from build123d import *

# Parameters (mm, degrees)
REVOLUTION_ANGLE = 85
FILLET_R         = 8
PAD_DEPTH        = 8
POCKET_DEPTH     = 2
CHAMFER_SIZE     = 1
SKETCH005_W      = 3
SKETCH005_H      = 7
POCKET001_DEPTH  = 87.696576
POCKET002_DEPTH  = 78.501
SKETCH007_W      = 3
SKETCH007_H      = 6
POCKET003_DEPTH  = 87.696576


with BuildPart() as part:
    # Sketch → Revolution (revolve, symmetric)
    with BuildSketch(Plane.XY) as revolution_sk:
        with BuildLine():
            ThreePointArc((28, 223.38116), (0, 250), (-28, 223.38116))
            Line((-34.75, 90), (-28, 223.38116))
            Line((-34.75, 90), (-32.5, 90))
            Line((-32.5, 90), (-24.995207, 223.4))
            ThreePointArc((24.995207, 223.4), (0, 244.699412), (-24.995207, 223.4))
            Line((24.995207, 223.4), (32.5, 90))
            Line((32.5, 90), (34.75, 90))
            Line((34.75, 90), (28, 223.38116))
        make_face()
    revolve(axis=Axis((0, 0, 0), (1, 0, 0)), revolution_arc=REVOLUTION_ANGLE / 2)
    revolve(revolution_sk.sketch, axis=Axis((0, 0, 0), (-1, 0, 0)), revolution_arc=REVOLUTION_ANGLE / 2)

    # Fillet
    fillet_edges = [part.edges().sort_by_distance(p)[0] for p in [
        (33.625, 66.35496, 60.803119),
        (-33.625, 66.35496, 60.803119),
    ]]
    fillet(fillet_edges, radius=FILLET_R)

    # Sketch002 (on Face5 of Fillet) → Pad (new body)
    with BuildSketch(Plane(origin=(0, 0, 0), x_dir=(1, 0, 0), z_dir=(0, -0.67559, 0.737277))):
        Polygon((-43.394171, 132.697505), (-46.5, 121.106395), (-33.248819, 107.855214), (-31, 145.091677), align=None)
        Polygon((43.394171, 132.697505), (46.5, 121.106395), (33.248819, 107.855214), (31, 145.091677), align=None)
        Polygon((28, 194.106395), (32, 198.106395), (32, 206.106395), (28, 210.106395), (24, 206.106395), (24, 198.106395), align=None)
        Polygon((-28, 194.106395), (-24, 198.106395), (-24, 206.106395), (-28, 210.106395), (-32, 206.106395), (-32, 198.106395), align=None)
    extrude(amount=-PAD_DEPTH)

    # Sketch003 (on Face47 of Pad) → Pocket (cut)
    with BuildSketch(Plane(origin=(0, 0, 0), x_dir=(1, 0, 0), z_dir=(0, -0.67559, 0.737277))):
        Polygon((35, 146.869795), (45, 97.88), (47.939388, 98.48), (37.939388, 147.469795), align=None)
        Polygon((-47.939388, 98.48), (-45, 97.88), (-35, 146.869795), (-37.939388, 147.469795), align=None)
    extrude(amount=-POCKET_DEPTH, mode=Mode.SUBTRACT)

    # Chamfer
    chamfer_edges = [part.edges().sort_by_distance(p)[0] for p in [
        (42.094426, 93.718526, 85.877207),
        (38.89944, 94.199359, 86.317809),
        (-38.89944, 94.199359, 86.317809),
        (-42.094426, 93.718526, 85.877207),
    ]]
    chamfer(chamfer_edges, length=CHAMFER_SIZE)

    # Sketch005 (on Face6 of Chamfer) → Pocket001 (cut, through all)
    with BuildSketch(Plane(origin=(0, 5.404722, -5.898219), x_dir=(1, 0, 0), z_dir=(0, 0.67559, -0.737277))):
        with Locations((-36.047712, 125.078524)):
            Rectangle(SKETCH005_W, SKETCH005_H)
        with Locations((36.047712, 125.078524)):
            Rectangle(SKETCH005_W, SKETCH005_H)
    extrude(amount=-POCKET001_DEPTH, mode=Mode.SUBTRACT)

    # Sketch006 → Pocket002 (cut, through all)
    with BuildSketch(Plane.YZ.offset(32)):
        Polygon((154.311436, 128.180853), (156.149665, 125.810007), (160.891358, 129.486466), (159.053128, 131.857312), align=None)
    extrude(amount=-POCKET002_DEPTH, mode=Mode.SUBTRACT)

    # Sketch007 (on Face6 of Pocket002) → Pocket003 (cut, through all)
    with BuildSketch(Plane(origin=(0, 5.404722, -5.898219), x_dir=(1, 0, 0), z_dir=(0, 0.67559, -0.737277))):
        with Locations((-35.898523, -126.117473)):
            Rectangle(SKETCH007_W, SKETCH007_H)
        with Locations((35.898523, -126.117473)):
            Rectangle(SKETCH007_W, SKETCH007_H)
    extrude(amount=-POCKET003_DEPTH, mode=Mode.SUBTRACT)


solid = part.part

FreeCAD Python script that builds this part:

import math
import FreeCAD as App
import Part
import Sketcher

V = App.Vector
Q = App.Units.Quantity


def edges_at(feature, points):
    """Names of the edges that pass closest to the given points."""
    edges = feature.Shape.Edges
    near = lambda p: min(range(len(edges)), key=lambda i: edges[i].distToShape(Part.Vertex(*p))[0])
    return sorted({f"Edge{near(p) + 1}" for p in points})

doc = App.newDocument("Part")
params = doc.addObject("Spreadsheet::Sheet", "Params")
for row, (alias, value) in enumerate([
    ("sketch1_width", "2.25 mm"),
    ("revolution_angle", "42.5 deg"),
    ("sketch2_width", "2.25 mm"),
    ("revolution2_angle", "42.5 deg"),
    ("fillet_radius", "8 mm"),
    ("sketch3_height", "8 mm"),
    ("sketch3_length", "12 mm"),
    ("sketch3_length2", "18.74 mm"),
    ("pad1_length", "8 mm"),
    ("sketch4_length", "50 mm"),
    ("sketch4_length2", "3 mm"),
    ("pocket1_length", "2 mm"),
    ("chamfer_size", "1 mm"),
    ("sketch5_width", "3 mm"),
    ("sketch5_height", "7 mm"),
    ("sketch6_length", "2.999999 mm"),
    ("sketch6_length2", "6 mm"),
    ("sketch7_width", "3 mm"),
    ("sketch7_height", "6 mm"),
], start=1):
    params.set(f"A{row}", alias)
    params.set(f"B{row}", "=" + value)
    params.setAlias(f"B{row}", alias)

body = doc.addObject("PartDesign::Body", "Body")

# Sketch on XY plane
sketch1 = body.newObject("Sketcher::SketchObject", "Sketch")
sketch1.AttachmentSupport = (doc.getObject("XY_Plane"), [""])
sketch1.MapMode = "FlatFace"
sketch1.addGeometry([
    Part.ArcOfCircle(Part.Circle(V(0, 222, 0), V(0, 0, 1), 28), math.radians(3), math.radians(177)),  # 0
    Part.LineSegment(V(-28, 223.4, 0), V(-34.8, 90, 0)),  # 1
    Part.LineSegment(V(-34.8, 90, 0), V(-32.5, 90, 0)),  # 2
    Part.LineSegment(V(-32.5, 90, 0), V(-25, 223.4, 0)),  # 3
    Part.ArcOfCircle(Part.Circle(V(0, 219.4, 0), V(0, 0, 1), 25.3), math.radians(9), math.radians(171)),  # 4
    Part.LineSegment(V(25, 223.4, 0), V(32.5, 90, 0)),  # 5
    Part.LineSegment(V(32.5, 90, 0), V(34.8, 90, 0)),  # 6
    Part.LineSegment(V(34.8, 90, 0), V(28, 223.4, 0)),  # 7
], False)
sketch1.addConstraint([
    Sketcher.Constraint("Tangent", 0, 2, 1, 1),
    Sketcher.Constraint("Coincident", 1, 2, 2, 1),
    Sketcher.Constraint("Coincident", 2, 2, 3, 1),
    Sketcher.Constraint("Coincident", 3, 2, 4, 2),
    Sketcher.Constraint("Coincident", 4, 1, 5, 1),
    Sketcher.Constraint("Coincident", 5, 2, 6, 1),
    Sketcher.Constraint("Coincident", 6, 2, 7, 1),
    Sketcher.Constraint("Tangent", 7, 2, 0, 1),
    Sketcher.Constraint("Horizontal", 2),
    Sketcher.Constraint("Horizontal", 6),
    Sketcher.Constraint("Symmetric", 3, 2, 4, 1, -2),
    Sketcher.Constraint("Symmetric", 2, 2, 5, 2, -2),
    Sketcher.Constraint("Symmetric", 0, 2, 7, 2, -2),
    Sketcher.Constraint("DistanceX", 0, 2, -1, 1, 28.0),
    Sketcher.Constraint("DistanceY", -1, 1, 1, 2, 90.0),
    Sketcher.Constraint("DistanceX", 2, 2, 5, 2, 65.0),
    Sketcher.Constraint("DistanceX", 2, 1, 2, 2, 2.25),
    Sketcher.Constraint("DistanceY", -1, 1, 3, 2, 223.4),
    Sketcher.Constraint("Radius", 4, 25.315847),
    Sketcher.Constraint("Distance", 1, 133.551849),
    Sketcher.Constraint("Distance", 3, 133.610935),
])
sketch1.setExpression("Constraints[16]", "Params.sketch1_width")
revolution = body.newObject("PartDesign::Revolution", "Revolution")
revolution.Profile = sketch1
revolution.ReferenceAxis = (sketch1, ["H_Axis"])
revolution.setExpression("Angle", "Params.revolution_angle")

# Sketch on XY plane
sketch2 = body.newObject("Sketcher::SketchObject", "Sketch001")
sketch2.AttachmentSupport = (doc.getObject("XY_Plane"), [""])
sketch2.MapMode = "FlatFace"
sketch2.addGeometry([
    Part.ArcOfCircle(Part.Circle(V(0, 222, 0), V(0, 0, 1), 28), math.radians(3), math.radians(177)),  # 0
    Part.LineSegment(V(-28, 223.4, 0), V(-34.8, 90, 0)),  # 1
    Part.LineSegment(V(-34.8, 90, 0), V(-32.5, 90, 0)),  # 2
    Part.LineSegment(V(-32.5, 90, 0), V(-25, 223.4, 0)),  # 3
    Part.ArcOfCircle(Part.Circle(V(0, 219.4, 0), V(0, 0, 1), 25.3), math.radians(9), math.radians(171)),  # 4
    Part.LineSegment(V(25, 223.4, 0), V(32.5, 90, 0)),  # 5
    Part.LineSegment(V(32.5, 90, 0), V(34.8, 90, 0)),  # 6
    Part.LineSegment(V(34.8, 90, 0), V(28, 223.4, 0)),  # 7
], False)
sketch2.addConstraint([
    Sketcher.Constraint("Tangent", 0, 2, 1, 1),
    Sketcher.Constraint("Coincident", 1, 2, 2, 1),
    Sketcher.Constraint("Coincident", 2, 2, 3, 1),
    Sketcher.Constraint("Coincident", 3, 2, 4, 2),
    Sketcher.Constraint("Coincident", 4, 1, 5, 1),
    Sketcher.Constraint("Coincident", 5, 2, 6, 1),
    Sketcher.Constraint("Coincident", 6, 2, 7, 1),
    Sketcher.Constraint("Tangent", 7, 2, 0, 1),
    Sketcher.Constraint("Horizontal", 2),
    Sketcher.Constraint("Horizontal", 6),
    Sketcher.Constraint("Symmetric", 3, 2, 4, 1, -2),
    Sketcher.Constraint("Symmetric", 2, 2, 5, 2, -2),
    Sketcher.Constraint("Symmetric", 0, 2, 7, 2, -2),
    Sketcher.Constraint("DistanceX", 0, 2, -1, 1, 28.0),
    Sketcher.Constraint("DistanceY", -1, 1, 1, 2, 90.0),
    Sketcher.Constraint("DistanceX", 2, 2, 5, 2, 65.0),
    Sketcher.Constraint("DistanceX", 2, 1, 2, 2, 2.25),
    Sketcher.Constraint("DistanceY", -1, 1, 3, 2, 223.4),
    Sketcher.Constraint("Radius", 4, 25.315847),
    Sketcher.Constraint("Distance", 1, 133.551849),
    Sketcher.Constraint("Distance", 3, 133.610935),
])
sketch2.setExpression("Constraints[16]", "Params.sketch2_width")
revolution2 = body.newObject("PartDesign::Revolution", "Revolution001")
revolution2.Profile = sketch2
revolution2.ReferenceAxis = (sketch2, ["H_Axis"])
revolution2.setExpression("Angle", "Params.revolution2_angle")
revolution2.Reversed = True
doc.recompute()

fillet = body.newObject("PartDesign::Fillet", "Fillet")
fillet.Base = (revolution2, edges_at(revolution2, [(33.625, 66.355, 60.803), (-33.625, 66.355, 60.803)]))
fillet.setExpression("Radius", "Params.fillet_radius")

# Sketch on an angled plane
sketch3 = body.newObject("Sketcher::SketchObject", "Sketch002")
sketch3.Placement = App.Placement(V(0, 0, 0), App.Rotation(V(1, 0, 0), V(0, 0.737277286, 0.675590263), V(0, -0.675590263, 0.737277286), "ZXY"))
sketch3.addGeometry([
    Part.LineSegment(V(-43, 133, 0), V(-46, 121, 0)),  # 0
    Part.LineSegment(V(-46, 121, 0), V(-33, 108, 0)),  # 1
    Part.LineSegment(V(-33, 108, 0), V(-31, 145, 0)),  # 2
    Part.LineSegment(V(-31, 145, 0), V(-43, 133, 0)),  # 3
    Part.LineSegment(V(46, 121, 0), V(43, 133, 0)),  # 4
    Part.LineSegment(V(43, 133, 0), V(31, 145, 0)),  # 5
    Part.LineSegment(V(31, 145, 0), V(33, 108, 0)),  # 6
    Part.LineSegment(V(33, 108, 0), V(46, 121, 0)),  # 7
    Part.LineSegment(V(28, 194, 0), V(32, 198, 0)),  # 8
    Part.LineSegment(V(32, 198, 0), V(32, 206, 0)),  # 9
    Part.LineSegment(V(32, 206, 0), V(28, 210, 0)),  # 10
    Part.LineSegment(V(28, 210, 0), V(24, 206, 0)),  # 11
    Part.LineSegment(V(24, 206, 0), V(24, 198, 0)),  # 12
    Part.LineSegment(V(24, 198, 0), V(28, 194, 0)),  # 13
    Part.LineSegment(V(-28, 194, 0), V(-24, 198, 0)),  # 14
    Part.LineSegment(V(-24, 198, 0), V(-24, 206, 0)),  # 15
    Part.LineSegment(V(-24, 206, 0), V(-28, 210, 0)),  # 16
    Part.LineSegment(V(-28, 210, 0), V(-32, 206, 0)),  # 17
    Part.LineSegment(V(-32, 206, 0), V(-32, 198, 0)),  # 18
    Part.LineSegment(V(-32, 198, 0), V(-28, 194, 0)),  # 19
], False)
sketch3.addConstraint([
    Sketcher.Constraint("Coincident", 0, 2, 1, 1),
    Sketcher.Constraint("Coincident", 1, 2, 2, 1),
    Sketcher.Constraint("Coincident", 2, 2, 3, 1),
    Sketcher.Constraint("Coincident", 3, 2, 0, 1),
    Sketcher.Constraint("Coincident", 4, 2, 5, 1),
    Sketcher.Constraint("Coincident", 5, 2, 6, 1),
    Sketcher.Constraint("Coincident", 6, 2, 7, 1),
    Sketcher.Constraint("Coincident", 7, 2, 4, 1),
    Sketcher.Constraint("Coincident", 8, 2, 9, 1),
    Sketcher.Constraint("Coincident", 9, 2, 10, 1),
    Sketcher.Constraint("Coincident", 10, 2, 11, 1),
    Sketcher.Constraint("Coincident", 11, 2, 12, 1),
    Sketcher.Constraint("Coincident", 12, 2, 13, 1),
    Sketcher.Constraint("Coincident", 13, 2, 8, 1),
    Sketcher.Constraint("Coincident", 14, 2, 15, 1),
    Sketcher.Constraint("Coincident", 15, 2, 16, 1),
    Sketcher.Constraint("Coincident", 16, 2, 17, 1),
    Sketcher.Constraint("Coincident", 17, 2, 18, 1),
    Sketcher.Constraint("Coincident", 18, 2, 19, 1),
    Sketcher.Constraint("Coincident", 19, 2, 14, 1),
    Sketcher.Constraint("Vertical", 9),
    Sketcher.Constraint("Vertical", 12),
    Sketcher.Constraint("Vertical", 15),
    Sketcher.Constraint("Vertical", 18),
    Sketcher.Constraint("Symmetric", 3, 2, 4, 2, -2),
    Sketcher.Constraint("Symmetric", 2, 2, 5, 2, -2),
    Sketcher.Constraint("Symmetric", 1, 2, 6, 2, -2),
    Sketcher.Constraint("Symmetric", 0, 2, 7, 2, -2),
    Sketcher.Constraint("Symmetric", 12, 2, 14, 2, -2),
    Sketcher.Constraint("Symmetric", 10, 2, 16, 2, -2),
    Sketcher.Constraint("Symmetric", 9, 2, 17, 2, -2),
    Sketcher.Constraint("Symmetric", 13, 2, 19, 2, -2),
    Sketcher.Constraint("Perpendicular", 1, 3),
    Sketcher.Constraint("Perpendicular", 3, 5),
    Sketcher.Constraint("Parallel", 7, 8),
    Sketcher.Constraint("Perpendicular", 8, 10),
    Sketcher.Constraint("Perpendicular", 10, 11),
    Sketcher.Constraint("Perpendicular", 11, 13),
    Sketcher.Constraint("Perpendicular", 14, 16),
    Sketcher.Constraint("Perpendicular", 17, 19),
    Sketcher.Constraint("Horizontal", 9, 2, 11, 2),
    Sketcher.Constraint("Horizontal", 8, 2, 12, 2),
    Sketcher.Constraint("DistanceY", 9, 1, 9, 2, 8.0),
    Sketcher.Constraint("Angle", 0, Q("-105.000002 deg")),
    Sketcher.Constraint("Distance", 0, 12.0),
    Sketcher.Constraint("DistanceX", 2, 2, -1, 1, 31.0),
    Sketcher.Constraint("DistanceX", -1, 1, 8, 2, 32.0),
    Sketcher.Constraint("DistanceX", -1, 1, 10, 2, 28.0),
    Sketcher.Constraint("DistanceY", 7, 2, 8, 2, 77.0),
    Sketcher.Constraint("DistanceX", 0, 2, -1, 1, 46.5),
    Sketcher.Constraint("Distance", 1, 18.74),
    Sketcher.Constraint("DistanceY", -1, 1, 0, 2, 121.106395),
])
sketch3.setExpression("Constraints[42]", "Params.sketch3_height")
sketch3.setExpression("Constraints[44]", "Params.sketch3_length")
sketch3.setExpression("Constraints[50]", "Params.sketch3_length2")
pad1 = body.newObject("PartDesign::Pad", "Pad")
pad1.Profile = sketch3
pad1.setExpression("Length", "Params.pad1_length")
pad1.Reversed = True

# Sketch on an angled plane
sketch4 = body.newObject("Sketcher::SketchObject", "Sketch003")
sketch4.Placement = App.Placement(V(0, 0, 0), App.Rotation(V(1, 0, 0), V(0, 0.737277286, 0.675590263), V(0, -0.675590263, 0.737277286), "ZXY"))
sketch4.addGeometry([
    Part.LineSegment(V(35, 146.9, 0), V(45, 97.9, 0)),  # 0
    Part.LineSegment(V(45, 97.9, 0), V(47.9, 98.5, 0)),  # 1
    Part.LineSegment(V(47.9, 98.5, 0), V(37.9, 147.5, 0)),  # 2
    Part.LineSegment(V(37.9, 147.5, 0), V(35, 146.9, 0)),  # 3
    Part.LineSegment(V(-47.9, 98.5, 0), V(-45, 97.9, 0)),  # 4
    Part.LineSegment(V(-45, 97.9, 0), V(-35, 146.9, 0)),  # 5
    Part.LineSegment(V(-35, 146.9, 0), V(-37.9, 147.5, 0)),  # 6
    Part.LineSegment(V(-37.9, 147.5, 0), V(-47.9, 98.5, 0)),  # 7
], False)
sketch4.addConstraint([
    Sketcher.Constraint("Coincident", 0, 2, 1, 1),
    Sketcher.Constraint("Coincident", 1, 2, 2, 1),
    Sketcher.Constraint("Coincident", 2, 2, 3, 1),
    Sketcher.Constraint("Coincident", 3, 2, 0, 1),
    Sketcher.Constraint("Coincident", 4, 2, 5, 1),
    Sketcher.Constraint("Coincident", 5, 2, 6, 1),
    Sketcher.Constraint("Coincident", 6, 2, 7, 1),
    Sketcher.Constraint("Coincident", 7, 2, 4, 1),
    Sketcher.Constraint("Symmetric", 0, 2, 4, 2, -2),
    Sketcher.Constraint("Symmetric", 3, 2, 5, 2, -2),
    Sketcher.Constraint("Symmetric", 2, 2, 6, 2, -2),
    Sketcher.Constraint("Symmetric", 1, 2, 7, 2, -2),
    Sketcher.Constraint("Perpendicular", 0, 1),
    Sketcher.Constraint("Perpendicular", 1, 2),
    Sketcher.Constraint("Perpendicular", 2, 3),
    Sketcher.Constraint("Distance", 0, 50.0),
    Sketcher.Constraint("Distance", 1, 3.0),
    Sketcher.Constraint("DistanceX", -1, 1, 0, 2, 45.0),
    Sketcher.Constraint("DistanceX", -1, 1, 3, 2, 35.0),
    Sketcher.Constraint("DistanceY", -1, 1, 0, 2, 97.88),
])
sketch4.setExpression("Constraints[15]", "Params.sketch4_length")
sketch4.setExpression("Constraints[16]", "Params.sketch4_length2")
pocket1 = body.newObject("PartDesign::Pocket", "Pocket")
pocket1.Profile = sketch4
pocket1.setExpression("Length", "Params.pocket1_length")
doc.recompute()

chamfer = body.newObject("PartDesign::Chamfer", "Chamfer")
chamfer.Base = (pocket1, edges_at(pocket1, [
    (42.094, 93.719, 85.877),
    (38.899, 94.199, 86.318),
    (-38.899, 94.199, 86.318),
    (-42.094, 93.719, 85.877),
]))
chamfer.setExpression("Size", "Params.chamfer_size")

# Sketch on an angled plane
sketch5 = body.newObject("Sketcher::SketchObject", "Sketch004")
sketch5.Placement = App.Placement(V(0, 5.404722, -5.898219), App.Rotation(V(1, 0, 0), V(0, -0.737277286, -0.675590263), V(0, 0.675590263, -0.737277286), "ZXY"))
sketch5.addGeometry([
    Part.LineSegment(V(-37.5, 128.6, 0), V(-37.5, 121.6, 0)),  # 0
    Part.LineSegment(V(-37.5, 121.6, 0), V(-34.5, 121.6, 0)),  # 1
    Part.LineSegment(V(-34.5, 121.6, 0), V(-34.5, 128.6, 0)),  # 2
    Part.LineSegment(V(-34.5, 128.6, 0), V(-37.5, 128.6, 0)),  # 3
    Part.LineSegment(V(34.5, 128.6, 0), V(34.5, 121.6, 0)),  # 4
    Part.LineSegment(V(34.5, 121.6, 0), V(37.5, 121.6, 0)),  # 5
    Part.LineSegment(V(37.5, 121.6, 0), V(37.5, 128.6, 0)),  # 6
    Part.LineSegment(V(37.5, 128.6, 0), V(34.5, 128.6, 0)),  # 7
], False)
sketch5.addConstraint([
    Sketcher.Constraint("Coincident", 0, 2, 1, 1),
    Sketcher.Constraint("Coincident", 1, 2, 2, 1),
    Sketcher.Constraint("Coincident", 2, 2, 3, 1),
    Sketcher.Constraint("Coincident", 3, 2, 0, 1),
    Sketcher.Constraint("Coincident", 4, 2, 5, 1),
    Sketcher.Constraint("Coincident", 5, 2, 6, 1),
    Sketcher.Constraint("Coincident", 6, 2, 7, 1),
    Sketcher.Constraint("Coincident", 7, 2, 4, 1),
    Sketcher.Constraint("Vertical", 0),
    Sketcher.Constraint("Horizontal", 1),
    Sketcher.Constraint("Vertical", 2),
    Sketcher.Constraint("Horizontal", 3),
    Sketcher.Constraint("Vertical", 4),
    Sketcher.Constraint("Horizontal", 5),
    Sketcher.Constraint("Vertical", 6),
    Sketcher.Constraint("Horizontal", 7),
    Sketcher.Constraint("Symmetric", 1, 2, 4, 2, -2),
    Sketcher.Constraint("Symmetric", 3, 2, 6, 2, -2),
    Sketcher.Constraint("DistanceX", 1, 1, 1, 2, 3.0),
    Sketcher.Constraint("DistanceY", 0, 2, 0, 1, 7.0),
    Sketcher.Constraint("DistanceX", 0, 2, -1, 1, 37.547712),
    Sketcher.Constraint("DistanceY", -1, 1, 0, 2, 121.578524),
])
sketch5.setExpression("Constraints[18]", "Params.sketch5_width")
sketch5.setExpression("Constraints[19]", "Params.sketch5_height")
pocket2 = body.newObject("PartDesign::Pocket", "Pocket001")
pocket2.Profile = sketch5
pocket2.Type = "ThroughAll"

# Sketch on YZ plane
sketch6 = body.newObject("Sketcher::SketchObject", "Sketch005")
sketch6.AttachmentSupport = (doc.getObject("YZ_Plane"), [""])
sketch6.MapMode = "FlatFace"
sketch6.AttachmentOffset = App.Placement(V(0, 0, 32), App.Rotation())
sketch6.addGeometry([
    Part.LineSegment(V(154.3, 128.2, 0), V(156.1, 125.8, 0)),
    Part.LineSegment(V(156.1, 125.8, 0), V(160.9, 129.5, 0)),
    Part.LineSegment(V(160.9, 129.5, 0), V(159.1, 131.9, 0)),
    Part.LineSegment(V(159.1, 131.9, 0), V(154.3, 128.2, 0)),
], False)
sketch6.addConstraint([
    Sketcher.Constraint("Coincident", 0, 2, 1, 1),
    Sketcher.Constraint("Coincident", 1, 2, 2, 1),
    Sketcher.Constraint("Coincident", 2, 2, 3, 1),
    Sketcher.Constraint("Coincident", 3, 2, 0, 1),
    Sketcher.Constraint("Perpendicular", 0, 1),
    Sketcher.Constraint("Perpendicular", 1, 2),
    Sketcher.Constraint("Perpendicular", 2, 3),
    Sketcher.Constraint("Distance", 0, 2.999999),
    Sketcher.Constraint("Distance", 1, 6.0),
    Sketcher.Constraint("DistanceX", -1, 1, 1, 2, 160.891358),
    Sketcher.Constraint("DistanceY", -1, 1, 2, 2, 131.857312),
    Sketcher.Constraint("DistanceY", 0, 2, 1, 2, 3.676459),
])
sketch6.setExpression("Constraints[7]", "Params.sketch6_length")
sketch6.setExpression("Constraints[8]", "Params.sketch6_length2")
pocket3 = body.newObject("PartDesign::Pocket", "Pocket002")
pocket3.Profile = sketch6
pocket3.Type = "ThroughAll"

# Sketch on an angled plane
sketch7 = body.newObject("Sketcher::SketchObject", "Sketch006")
sketch7.Placement = App.Placement(V(0, 5.404722, -5.898219), App.Rotation(V(1, 0, 0), V(0, -0.737277286, -0.675590263), V(0, 0.675590263, -0.737277286), "ZXY"))
sketch7.addGeometry([
    Part.LineSegment(V(-37.4, -123.1, 0), V(-37.4, -129.1, 0)),  # 0
    Part.LineSegment(V(-37.4, -129.1, 0), V(-34.4, -129.1, 0)),  # 1
    Part.LineSegment(V(-34.4, -129.1, 0), V(-34.4, -123.1, 0)),  # 2
    Part.LineSegment(V(-34.4, -123.1, 0), V(-37.4, -123.1, 0)),  # 3
    Part.LineSegment(V(34.4, -123.1, 0), V(34.4, -129.1, 0)),  # 4
    Part.LineSegment(V(34.4, -129.1, 0), V(37.4, -129.1, 0)),  # 5
    Part.LineSegment(V(37.4, -129.1, 0), V(37.4, -123.1, 0)),  # 6
    Part.LineSegment(V(37.4, -123.1, 0), V(34.4, -123.1, 0)),  # 7
], False)
sketch7.addConstraint([
    Sketcher.Constraint("Coincident", 0, 2, 1, 1),
    Sketcher.Constraint("Coincident", 1, 2, 2, 1),
    Sketcher.Constraint("Coincident", 2, 2, 3, 1),
    Sketcher.Constraint("Coincident", 3, 2, 0, 1),
    Sketcher.Constraint("Coincident", 4, 2, 5, 1),
    Sketcher.Constraint("Coincident", 5, 2, 6, 1),
    Sketcher.Constraint("Coincident", 6, 2, 7, 1),
    Sketcher.Constraint("Coincident", 7, 2, 4, 1),
    Sketcher.Constraint("Vertical", 0),
    Sketcher.Constraint("Horizontal", 1),
    Sketcher.Constraint("Vertical", 2),
    Sketcher.Constraint("Horizontal", 3),
    Sketcher.Constraint("Vertical", 4),
    Sketcher.Constraint("Horizontal", 5),
    Sketcher.Constraint("Vertical", 6),
    Sketcher.Constraint("Horizontal", 7),
    Sketcher.Constraint("Symmetric", 1, 2, 4, 2, -2),
    Sketcher.Constraint("Symmetric", 3, 2, 6, 2, -2),
    Sketcher.Constraint("DistanceX", 1, 1, 1, 2, 3.0),
    Sketcher.Constraint("DistanceY", 0, 2, 0, 1, 6.0),
    Sketcher.Constraint("DistanceX", 0, 2, -1, 1, 37.398523),
    Sketcher.Constraint("DistanceY", 0, 2, -1, 1, 129.117473),
])
sketch7.setExpression("Constraints[18]", "Params.sketch7_width")
sketch7.setExpression("Constraints[19]", "Params.sketch7_height")
pocket4 = body.newObject("PartDesign::Pocket", "Pocket003")
pocket4.Profile = sketch7
pocket4.Type = "ThroughAll"

doc.recompute()
